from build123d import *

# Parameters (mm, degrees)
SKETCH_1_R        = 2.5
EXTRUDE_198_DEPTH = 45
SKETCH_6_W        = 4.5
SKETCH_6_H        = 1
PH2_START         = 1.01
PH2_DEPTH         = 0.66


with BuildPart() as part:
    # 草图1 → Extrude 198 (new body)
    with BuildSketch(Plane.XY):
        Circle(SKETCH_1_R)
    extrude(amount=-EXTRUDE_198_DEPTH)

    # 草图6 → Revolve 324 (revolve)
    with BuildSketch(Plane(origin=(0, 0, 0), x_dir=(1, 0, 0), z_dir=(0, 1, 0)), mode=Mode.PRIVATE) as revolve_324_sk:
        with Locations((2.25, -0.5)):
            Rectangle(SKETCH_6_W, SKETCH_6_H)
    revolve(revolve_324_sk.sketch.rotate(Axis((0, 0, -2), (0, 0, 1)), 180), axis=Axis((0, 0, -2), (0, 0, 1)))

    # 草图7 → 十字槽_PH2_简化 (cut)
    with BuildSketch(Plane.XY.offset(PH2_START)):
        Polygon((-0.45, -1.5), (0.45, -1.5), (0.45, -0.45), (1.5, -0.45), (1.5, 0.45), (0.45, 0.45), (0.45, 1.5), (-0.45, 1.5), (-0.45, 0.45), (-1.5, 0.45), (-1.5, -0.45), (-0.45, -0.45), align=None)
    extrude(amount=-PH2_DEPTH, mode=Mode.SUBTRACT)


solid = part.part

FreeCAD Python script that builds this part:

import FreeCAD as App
import Part
import Sketcher

doc = App.newDocument("Part")
params = doc.addObject("Spreadsheet::Sheet", "Params")
for row, (alias, value) in enumerate([
    ("sketch1_diameter", "5 mm"),
    ("pad1_length", "45 mm"),
    ("sketch2_height", "1 mm"),
    ("sketch2_width", "4.5 mm"),
    ("revolution_angle", "360 deg"),
    ("sketch3_width", "0.9 mm"),
    ("pocket1_length", "0.66 mm"),
], start=1):
    params.set(f"A{row}", alias)
    params.set(f"B{row}", "=" + value)
    params.setAlias(f"B{row}", alias)

body = doc.addObject("PartDesign::Body", "Body")

# Sketch on XY plane
sketch1 = body.newObject("Sketcher::SketchObject", "Sketch")
sketch1.AttachmentSupport = (doc.getObject("XY_Plane"), [""])
sketch1.MapMode = "FlatFace"
sketch1.addGeometry(Part.Circle(App.Vector(0, 0, 0), App.Vector(0, 0, 1), 2.5), False)
sketch1.addConstraint([
    Sketcher.Constraint("Coincident", 0, 3, -1, 1),
    Sketcher.Constraint("Diameter", 0, 5.0),
])
sketch1.setExpression("Constraints[1]", "Params.sketch1_diameter")
pad1 = body.newObject("PartDesign::Pad", "Pad")
pad1.Profile = sketch1
pad1.setExpression("Length", "Params.pad1_length")
pad1.Reversed = True

# Sketch on XZ plane
sketch2 = body.newObject("Sketcher::SketchObject", "Sketch001")
sketch2.AttachmentSupport = (doc.getObject("XZ_Plane"), [""])
sketch2.MapMode = "FlatFace"
sketch2.addGeometry([
    Part.LineSegment(App.Vector(0, 0, 0), App.Vector(0, 1, 0)),
    Part.LineSegment(App.Vector(0, 1, 0), App.Vector(4.5, 1, 0)),
    Part.LineSegment(App.Vector(4.5, 1, 0), App.Vector(4.5, 0, 0)),
    Part.LineSegment(App.Vector(4.5, 0, 0), App.Vector(0, 0, 0)),
], False)
sketch2.addConstraint([
    Sketcher.Constraint("Coincident", 0, 2, 1, 1),
    Sketcher.Constraint("Coincident", 1, 2, 2, 1),
    Sketcher.Constraint("Coincident", 2, 2, 3, 1),
    Sketcher.Constraint("Coincident", 3, 2, 0, 1),
    Sketcher.Constraint("Vertical", 0),
    Sketcher.Constraint("Horizontal", 1),
    Sketcher.Constraint("Vertical", 2),
    Sketcher.Constraint("Horizontal", 3),
    Sketcher.Constraint("Coincident", 3, 2, -1, 1),
    Sketcher.Constraint("DistanceY", 0, 1, 0, 2, 1.0),
    Sketcher.Constraint("DistanceX", 1, 1, 1, 2, 4.5),
])
sketch2.setExpression("Constraints[9]", "Params.sketch2_height")
sketch2.setExpression("Constraints[10]", "Params.sketch2_width")
revolution = body.newObject("PartDesign::Revolution", "Revolution")
revolution.Profile = sketch2
revolution.ReferenceAxis = (sketch2, ["V_Axis"])
revolution.setExpression("Angle", "Params.revolution_angle")

# Sketch on XY plane
sketch3 = body.newObject("Sketcher::SketchObject", "Sketch002")
sketch3.AttachmentSupport = (doc.getObject("XY_Plane"), [""])
sketch3.MapMode = "FlatFace"
sketch3.AttachmentOffset = App.Placement(App.Vector(0, 0, 1.01), App.Rotation())
sketch3.addGeometry([
    Part.LineSegment(App.Vector(-0.5, -1.5, 0), App.Vector(0.5, -1.5, 0)),  # 0
    Part.LineSegment(App.Vector(0.5, -1.5, 0), App.Vector(0.5, -0.5, 0)),  # 1
    Part.LineSegment(App.Vector(0.5, -0.5, 0), App.Vector(1.5, -0.5, 0)),  # 2
    Part.LineSegment(App.Vector(1.5, -0.5, 0), App.Vector(1.5, 0.5, 0)),  # 3
    Part.LineSegment(App.Vector(1.5, 0.5, 0), App.Vector(0.5, 0.5, 0)),  # 4
    Part.LineSegment(App.Vector(0.5, 0.5, 0), App.Vector(0.5, 1.5, 0)),  # 5
    Part.LineSegment(App.Vector(0.5, 1.5, 0), App.Vector(-0.5, 1.5, 0)),  # 6
    Part.LineSegment(App.Vector(-0.5, 1.5, 0), App.Vector(-0.5, 0.5, 0)),  # 7
    Part.LineSegment(App.Vector(-0.5, 0.5, 0), App.Vector(-1.5, 0.5, 0)),  # 8
    Part.LineSegment(App.Vector(-1.5, 0.5, 0), App.Vector(-1.5, -0.5, 0)),  # 9
    Part.LineSegment(App.Vector(-1.5, -0.5, 0), App.Vector(-0.5, -0.5, 0)),  # 10
    Part.LineSegment(App.Vector(-0.5, -0.5, 0), App.Vector(-0.5, -1.5, 0)),  # 11
], False)
sketch3.addConstraint([
    Sketcher.Constraint("Coincident", 0, 2, 1, 1),
    Sketcher.Constraint("Coincident", 1, 2, 2, 1),
    Sketcher.Constraint("Coincident", 2, 2, 3, 1),
    Sketcher.Constraint("Coincident", 3, 2, 4, 1),
    Sketcher.Constraint("Coincident", 4, 2, 5, 1),
    Sketcher.Constraint("Coincident", 5, 2, 6, 1),
    Sketcher.Constraint("Coincident", 6, 2, 7, 1),
    Sketcher.Constraint("Coincident", 7, 2, 8, 1),
    Sketcher.Constraint("Coincident", 8, 2, 9, 1),
    Sketcher.Constraint("Coincident", 9, 2, 10, 1),
    Sketcher.Constraint("Coincident", 10, 2, 11, 1),
    Sketcher.Constraint("Coincident", 11, 2, 0, 1),
    Sketcher.Constraint("Horizontal", 0),
    Sketcher.Constraint("Vertical", 1),
    Sketcher.Constraint("Horizontal", 2),
    Sketcher.Constraint("Vertical", 3),
    Sketcher.Constraint("Horizontal", 4),
    Sketcher.Constraint("Vertical", 5),
    Sketcher.Constraint("Horizontal", 6),
    Sketcher.Constraint("Vertical", 7),
    Sketcher.Constraint("Horizontal", 8),
    Sketcher.Constraint("Vertical", 9),
    Sketcher.Constraint("Horizontal", 10),
    Sketcher.Constraint("Vertical", 11),
    Sketcher.Constraint("Symmetric", 0, 2, 6, 2, -1, 1),
    Sketcher.Constraint("Symmetric", 2, 2, 8, 2, -1, 1),
    Sketcher.Constraint("Symmetric", 4, 2, 10, 2, -1, 1),
    Sketcher.Constraint("Symmetric", 4, 2, 7, 2, -2),
    Sketcher.Constraint("Equal", 10, 1),
    Sketcher.Constraint("Equal", 6, 3),
    Sketcher.Constraint("DistanceX", 0, 1, 0, 2, 0.9),
    Sketcher.Constraint("DistanceY", 0, 2, 5, 2, 3.0),
])
sketch3.setExpression("Constraints[30]", "Params.sketch3_width")
pocket1 = body.newObject("PartDesign::Pocket", "Pocket")
pocket1.Profile = sketch3
pocket1.setExpression("Length", "Params.pocket1_length")

doc.recompute()
